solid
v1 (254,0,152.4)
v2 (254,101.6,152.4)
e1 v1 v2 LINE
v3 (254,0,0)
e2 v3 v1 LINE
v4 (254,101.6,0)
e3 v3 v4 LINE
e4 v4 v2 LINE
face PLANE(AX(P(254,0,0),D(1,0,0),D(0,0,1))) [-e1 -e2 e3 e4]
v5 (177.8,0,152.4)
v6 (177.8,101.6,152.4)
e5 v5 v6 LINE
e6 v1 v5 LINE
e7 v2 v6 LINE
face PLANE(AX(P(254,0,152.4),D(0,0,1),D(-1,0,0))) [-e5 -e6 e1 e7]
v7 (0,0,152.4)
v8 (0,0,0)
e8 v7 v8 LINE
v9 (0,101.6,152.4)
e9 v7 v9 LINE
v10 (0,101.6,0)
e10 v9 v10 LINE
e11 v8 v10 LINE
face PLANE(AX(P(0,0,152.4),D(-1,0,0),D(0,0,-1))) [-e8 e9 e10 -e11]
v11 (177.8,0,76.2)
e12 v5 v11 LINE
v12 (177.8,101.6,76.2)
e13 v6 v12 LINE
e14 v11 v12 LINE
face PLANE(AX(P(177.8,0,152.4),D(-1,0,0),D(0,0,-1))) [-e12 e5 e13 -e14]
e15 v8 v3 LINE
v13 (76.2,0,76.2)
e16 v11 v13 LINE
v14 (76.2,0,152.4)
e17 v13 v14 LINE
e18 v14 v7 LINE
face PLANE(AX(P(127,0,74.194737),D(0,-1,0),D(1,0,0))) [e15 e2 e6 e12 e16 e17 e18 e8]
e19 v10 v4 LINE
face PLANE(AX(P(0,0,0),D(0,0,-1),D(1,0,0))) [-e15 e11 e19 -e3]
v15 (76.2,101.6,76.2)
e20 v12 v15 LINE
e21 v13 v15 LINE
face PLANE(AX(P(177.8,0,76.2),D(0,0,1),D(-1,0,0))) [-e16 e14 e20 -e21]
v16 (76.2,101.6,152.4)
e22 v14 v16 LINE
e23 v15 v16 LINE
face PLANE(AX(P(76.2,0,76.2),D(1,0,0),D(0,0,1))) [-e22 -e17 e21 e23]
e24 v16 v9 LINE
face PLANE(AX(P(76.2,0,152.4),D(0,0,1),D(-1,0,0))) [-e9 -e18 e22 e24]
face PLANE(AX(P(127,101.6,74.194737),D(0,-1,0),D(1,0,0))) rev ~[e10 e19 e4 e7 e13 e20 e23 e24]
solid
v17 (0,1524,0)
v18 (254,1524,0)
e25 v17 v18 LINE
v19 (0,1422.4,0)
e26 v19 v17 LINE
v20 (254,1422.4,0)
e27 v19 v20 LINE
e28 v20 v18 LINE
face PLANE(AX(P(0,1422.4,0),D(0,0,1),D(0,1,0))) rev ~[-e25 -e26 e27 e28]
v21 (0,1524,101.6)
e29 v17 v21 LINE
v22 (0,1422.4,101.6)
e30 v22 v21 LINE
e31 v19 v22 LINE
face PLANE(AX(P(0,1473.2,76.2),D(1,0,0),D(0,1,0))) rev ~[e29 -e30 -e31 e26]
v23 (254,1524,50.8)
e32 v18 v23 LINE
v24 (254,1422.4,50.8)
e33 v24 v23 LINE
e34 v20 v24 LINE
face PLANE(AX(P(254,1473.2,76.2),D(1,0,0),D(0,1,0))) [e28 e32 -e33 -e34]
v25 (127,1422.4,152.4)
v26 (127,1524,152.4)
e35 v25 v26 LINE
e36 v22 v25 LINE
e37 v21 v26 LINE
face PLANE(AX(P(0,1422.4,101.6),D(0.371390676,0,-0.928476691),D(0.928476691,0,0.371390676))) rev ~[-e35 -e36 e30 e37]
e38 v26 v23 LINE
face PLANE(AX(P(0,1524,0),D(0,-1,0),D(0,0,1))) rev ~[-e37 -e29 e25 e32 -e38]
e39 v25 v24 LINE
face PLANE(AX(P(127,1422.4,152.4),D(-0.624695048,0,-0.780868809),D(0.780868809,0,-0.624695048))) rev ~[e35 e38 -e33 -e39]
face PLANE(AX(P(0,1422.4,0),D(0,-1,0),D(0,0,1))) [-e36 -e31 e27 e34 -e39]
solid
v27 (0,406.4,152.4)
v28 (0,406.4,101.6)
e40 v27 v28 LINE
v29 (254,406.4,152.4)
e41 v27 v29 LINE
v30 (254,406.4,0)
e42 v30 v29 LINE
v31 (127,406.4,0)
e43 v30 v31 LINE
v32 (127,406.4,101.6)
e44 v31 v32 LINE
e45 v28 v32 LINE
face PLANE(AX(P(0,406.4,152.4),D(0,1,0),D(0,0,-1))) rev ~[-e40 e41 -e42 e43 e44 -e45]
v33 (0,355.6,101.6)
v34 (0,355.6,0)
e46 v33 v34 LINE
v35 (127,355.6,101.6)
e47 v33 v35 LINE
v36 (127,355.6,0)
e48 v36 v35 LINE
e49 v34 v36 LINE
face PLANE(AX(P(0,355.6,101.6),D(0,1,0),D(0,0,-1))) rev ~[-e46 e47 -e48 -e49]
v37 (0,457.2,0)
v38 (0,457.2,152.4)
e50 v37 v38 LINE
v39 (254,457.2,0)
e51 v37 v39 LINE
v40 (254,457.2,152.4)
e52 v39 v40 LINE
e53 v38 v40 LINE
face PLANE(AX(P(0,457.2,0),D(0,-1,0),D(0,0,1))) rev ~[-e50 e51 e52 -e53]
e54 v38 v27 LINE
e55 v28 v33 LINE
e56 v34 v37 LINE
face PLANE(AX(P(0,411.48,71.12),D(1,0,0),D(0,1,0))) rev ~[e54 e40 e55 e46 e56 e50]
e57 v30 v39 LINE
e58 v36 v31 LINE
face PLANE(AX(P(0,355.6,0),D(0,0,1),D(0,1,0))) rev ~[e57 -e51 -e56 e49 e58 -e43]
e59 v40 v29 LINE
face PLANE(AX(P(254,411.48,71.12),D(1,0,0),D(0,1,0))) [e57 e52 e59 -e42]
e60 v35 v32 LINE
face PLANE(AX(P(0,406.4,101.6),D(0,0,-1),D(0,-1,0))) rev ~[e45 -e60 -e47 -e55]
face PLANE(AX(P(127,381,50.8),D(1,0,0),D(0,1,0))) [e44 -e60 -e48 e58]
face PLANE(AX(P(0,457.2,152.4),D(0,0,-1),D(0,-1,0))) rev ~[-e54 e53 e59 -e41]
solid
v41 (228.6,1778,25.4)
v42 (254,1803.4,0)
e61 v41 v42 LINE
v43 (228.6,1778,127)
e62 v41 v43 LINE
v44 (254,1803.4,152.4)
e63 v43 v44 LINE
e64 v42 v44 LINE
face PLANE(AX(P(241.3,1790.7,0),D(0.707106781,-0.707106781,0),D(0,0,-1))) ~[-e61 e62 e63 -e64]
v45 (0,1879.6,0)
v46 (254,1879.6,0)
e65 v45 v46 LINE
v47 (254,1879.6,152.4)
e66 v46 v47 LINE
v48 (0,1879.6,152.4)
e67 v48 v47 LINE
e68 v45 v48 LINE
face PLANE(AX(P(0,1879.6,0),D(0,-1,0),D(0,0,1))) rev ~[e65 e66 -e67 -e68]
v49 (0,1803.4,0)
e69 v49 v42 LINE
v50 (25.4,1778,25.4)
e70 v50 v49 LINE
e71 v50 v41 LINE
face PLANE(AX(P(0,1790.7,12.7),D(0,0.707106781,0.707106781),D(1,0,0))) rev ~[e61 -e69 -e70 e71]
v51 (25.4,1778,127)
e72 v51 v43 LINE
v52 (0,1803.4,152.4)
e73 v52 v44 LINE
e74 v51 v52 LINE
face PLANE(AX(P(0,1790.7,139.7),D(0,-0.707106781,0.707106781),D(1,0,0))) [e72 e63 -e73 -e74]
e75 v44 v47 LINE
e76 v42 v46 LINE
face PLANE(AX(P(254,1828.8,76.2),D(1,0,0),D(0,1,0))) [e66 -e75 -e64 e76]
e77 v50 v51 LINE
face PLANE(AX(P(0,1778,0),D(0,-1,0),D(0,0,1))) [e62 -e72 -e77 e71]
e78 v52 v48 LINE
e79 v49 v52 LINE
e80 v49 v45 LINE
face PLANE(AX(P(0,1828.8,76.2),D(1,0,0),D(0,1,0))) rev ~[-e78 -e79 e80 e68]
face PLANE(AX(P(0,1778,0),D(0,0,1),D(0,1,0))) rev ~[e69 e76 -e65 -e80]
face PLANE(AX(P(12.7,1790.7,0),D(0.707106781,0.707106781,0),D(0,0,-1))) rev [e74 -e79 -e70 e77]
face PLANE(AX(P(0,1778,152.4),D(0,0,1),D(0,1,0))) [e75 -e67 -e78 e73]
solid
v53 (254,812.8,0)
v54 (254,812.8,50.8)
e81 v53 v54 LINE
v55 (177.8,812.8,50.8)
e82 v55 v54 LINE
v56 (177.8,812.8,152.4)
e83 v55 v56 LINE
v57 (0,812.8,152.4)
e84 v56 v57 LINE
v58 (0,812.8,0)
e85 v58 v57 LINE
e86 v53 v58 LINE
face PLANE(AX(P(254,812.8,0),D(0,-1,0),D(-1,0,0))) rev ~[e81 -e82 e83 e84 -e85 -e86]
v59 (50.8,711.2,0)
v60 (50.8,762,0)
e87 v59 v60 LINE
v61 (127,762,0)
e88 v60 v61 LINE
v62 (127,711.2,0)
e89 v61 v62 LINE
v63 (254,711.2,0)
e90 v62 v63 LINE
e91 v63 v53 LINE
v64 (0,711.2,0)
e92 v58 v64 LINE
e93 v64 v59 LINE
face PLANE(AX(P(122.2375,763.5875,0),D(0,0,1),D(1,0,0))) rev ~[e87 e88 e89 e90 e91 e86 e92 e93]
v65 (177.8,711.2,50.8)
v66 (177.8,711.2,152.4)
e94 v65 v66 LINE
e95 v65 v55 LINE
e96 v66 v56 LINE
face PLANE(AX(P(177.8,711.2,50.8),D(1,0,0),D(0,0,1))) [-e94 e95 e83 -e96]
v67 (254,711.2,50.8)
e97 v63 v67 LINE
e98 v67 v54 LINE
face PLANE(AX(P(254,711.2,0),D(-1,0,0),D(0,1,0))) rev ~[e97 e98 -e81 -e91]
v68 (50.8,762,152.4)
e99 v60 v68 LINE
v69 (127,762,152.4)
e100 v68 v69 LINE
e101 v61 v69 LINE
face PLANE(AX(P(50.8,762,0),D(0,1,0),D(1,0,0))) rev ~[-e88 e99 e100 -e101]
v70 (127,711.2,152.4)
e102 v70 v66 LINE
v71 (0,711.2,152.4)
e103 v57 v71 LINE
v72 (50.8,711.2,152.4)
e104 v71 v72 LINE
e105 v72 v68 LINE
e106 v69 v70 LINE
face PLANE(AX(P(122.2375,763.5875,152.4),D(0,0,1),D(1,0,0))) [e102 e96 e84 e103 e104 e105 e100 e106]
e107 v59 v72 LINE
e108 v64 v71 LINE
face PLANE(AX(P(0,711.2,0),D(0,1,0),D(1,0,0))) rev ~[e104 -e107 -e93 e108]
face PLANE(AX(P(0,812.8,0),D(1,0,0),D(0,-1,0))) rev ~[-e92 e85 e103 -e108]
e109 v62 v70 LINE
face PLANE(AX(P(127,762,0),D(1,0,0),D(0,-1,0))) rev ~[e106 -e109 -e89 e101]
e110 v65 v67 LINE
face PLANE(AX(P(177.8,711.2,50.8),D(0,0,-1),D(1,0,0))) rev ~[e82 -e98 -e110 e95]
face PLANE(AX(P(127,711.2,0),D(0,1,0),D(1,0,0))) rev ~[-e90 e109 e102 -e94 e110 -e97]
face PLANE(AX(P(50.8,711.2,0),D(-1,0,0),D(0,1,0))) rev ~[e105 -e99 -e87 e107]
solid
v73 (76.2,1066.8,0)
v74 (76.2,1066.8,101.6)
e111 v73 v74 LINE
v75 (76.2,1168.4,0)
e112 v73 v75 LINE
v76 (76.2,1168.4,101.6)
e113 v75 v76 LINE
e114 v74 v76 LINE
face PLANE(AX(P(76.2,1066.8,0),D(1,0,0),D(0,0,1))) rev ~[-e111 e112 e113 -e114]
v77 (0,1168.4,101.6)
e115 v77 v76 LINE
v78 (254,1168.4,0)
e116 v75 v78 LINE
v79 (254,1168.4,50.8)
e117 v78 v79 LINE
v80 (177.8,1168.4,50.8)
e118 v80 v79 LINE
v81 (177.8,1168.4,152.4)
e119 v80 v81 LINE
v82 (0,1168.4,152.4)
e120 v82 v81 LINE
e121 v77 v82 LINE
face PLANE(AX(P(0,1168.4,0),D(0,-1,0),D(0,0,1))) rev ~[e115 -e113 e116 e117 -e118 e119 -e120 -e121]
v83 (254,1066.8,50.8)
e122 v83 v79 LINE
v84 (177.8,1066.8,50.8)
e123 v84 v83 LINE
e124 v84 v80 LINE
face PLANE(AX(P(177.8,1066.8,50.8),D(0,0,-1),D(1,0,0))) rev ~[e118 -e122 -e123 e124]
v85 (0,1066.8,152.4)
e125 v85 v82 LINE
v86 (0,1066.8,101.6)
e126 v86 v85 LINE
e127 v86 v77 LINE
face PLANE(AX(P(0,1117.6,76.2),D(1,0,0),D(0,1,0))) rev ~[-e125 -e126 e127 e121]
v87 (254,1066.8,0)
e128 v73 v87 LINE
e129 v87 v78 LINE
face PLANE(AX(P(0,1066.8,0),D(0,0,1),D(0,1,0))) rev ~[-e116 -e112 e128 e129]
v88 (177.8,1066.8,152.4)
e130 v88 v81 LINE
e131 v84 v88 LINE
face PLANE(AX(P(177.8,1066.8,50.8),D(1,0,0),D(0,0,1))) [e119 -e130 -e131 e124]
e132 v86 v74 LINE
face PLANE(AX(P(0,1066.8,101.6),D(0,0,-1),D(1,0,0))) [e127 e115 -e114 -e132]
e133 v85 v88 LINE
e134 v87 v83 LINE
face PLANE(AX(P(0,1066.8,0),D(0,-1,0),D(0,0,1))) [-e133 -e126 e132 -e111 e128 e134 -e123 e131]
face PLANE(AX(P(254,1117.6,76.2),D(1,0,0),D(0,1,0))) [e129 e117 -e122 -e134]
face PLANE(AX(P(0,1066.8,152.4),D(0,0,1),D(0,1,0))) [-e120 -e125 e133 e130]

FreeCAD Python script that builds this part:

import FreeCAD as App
import Part
import Sketcher
from FreeCAD import Vector
Q = App.Units.Quantity


def edges_at(feature, points):
    """Names of the edges that pass closest to the given points."""
    edges = feature.Shape.Edges
    near = lambda p: min(range(len(edges)), key=lambda i: edges[i].distToShape(Part.Vertex(*p))[0])
    return sorted({f"Edge{near(p) + 1}" for p in points})


def add_polygon(sketch, points):
    """Adds a closed chain of lines whose ends are joined by coincident constraints."""
    first, n = sketch.GeometryCount, len(points)
    for a, b in zip(points, points[1:] + points[:1]):
        sketch.addGeometry(Part.LineSegment(App.Vector(*a, 0), App.Vector(*b, 0)), False)
    for i in range(n):
        sketch.addConstraint(Sketcher.Constraint("Coincident", first + i, 2, first + (i + 1) % n, 1))

doc = App.newDocument("Part")
params = doc.addObject("Spreadsheet::Sheet", "Params")
for row, (alias, value) in enumerate([
    ("sketch1_width", "10 in"),
    ("sketch1_width2", "3 in"),
    ("sketch1_height", "6 in"),
    ("pad1_length", "4 in"),
    ("sketch2_width", "4 in"),
    ("pad2_length", "10 in"),
    ("sketch3_width", "2 in"),
    ("sketch3_height", "4 in"),
    ("pocket1_length", "5 in"),
    ("sketch4_width", "2 in"),
    ("sketch4_width2", "3 in"),
    ("sketch4_width3", "5 in"),
    ("sketch4_height", "4 in"),
    ("pad3_length", "6 in"),
    ("sketch5_width", "3 in"),
    ("sketch5_height", "4 in"),
    ("pocket2_length", "4 in"),
    ("sketch6_width", "4 in"),
    ("sketch6_height", "6 in"),
    ("pad4_length", "10 in"),
    ("sketch7_width", "3 in"),
    ("sketch7_height", "4 in"),
    ("pocket3_length", "4 in"),
    ("sketch8_width", "3 in"),
    ("sketch8_height", "4 in"),
    ("pocket4_length", "4 in"),
    ("sketch9_width", "4 in"),
    ("sketch9_height", "6 in"),
    ("pad5_length", "10 in"),
    ("sketch10_width", "5 in"),
    ("sketch10_height", "4 in"),
    ("pocket5_length", "4 in"),
    ("sketch11_width", "5 in"),
    ("sketch11_height", "2 in"),
    ("pocket6_length", "4 in"),
    ("sketch12_width", "4 in"),
    ("sketch12_height", "6 in"),
    ("pad6_length", "10 in"),
    ("chamfer_size", "1 in"),
], start=1):
    params.set(f"A{row}", alias)
    params.set(f"B{row}", "=" + value)
    params.setAlias(f"B{row}", alias)

body = doc.addObject("PartDesign::Body", "Body")

sketch1 = doc.addObject("Sketcher::SketchObject", "Sketch")
body.addObject(sketch1)
sketch1.AttachmentSupport = (doc.XZ_Plane, [""])
sketch1.MapMode = "FlatFace"
add_polygon(sketch1, [(0, 152), (0, 0), (254, 0), (254, 152), (178, 152), (178, 76), (76, 76), (76, 152)])
sketch1.addConstraint([
    Sketcher.Constraint("Vertical", 0),
    Sketcher.Constraint("Horizontal", 1),
    Sketcher.Constraint("Vertical", 2),
    Sketcher.Constraint("Horizontal", 3),
    Sketcher.Constraint("Vertical", 4),
    Sketcher.Constraint("Horizontal", 5),
    Sketcher.Constraint("Vertical", 6),
    Sketcher.Constraint("Horizontal", 7),
    Sketcher.Constraint("Coincident", 0, 2, -1, 1),
    Sketcher.Constraint("Horizontal", 3, 2, 6, 2),
    Sketcher.Constraint("Equal", 3, 7),
    Sketcher.Constraint("Equal", 7, 4),
    Sketcher.Constraint("DistanceX", 1, 1, 1, 2, Q("10 in")),
    Sketcher.Constraint("DistanceX", 3, 2, 3, 1, Q("3 in")),
    Sketcher.Constraint("DistanceY", 0, 2, 0, 1, Q("6 in")),
])
sketch1.setExpression("Constraints[20]", "Params.sketch1_width")
sketch1.setExpression("Constraints[21]", "Params.sketch1_width2")
sketch1.setExpression("Constraints[22]", "Params.sketch1_height")
pad1 = doc.addObject("PartDesign::Pad", "Pad")
body.addObject(pad1)
pad1.Profile = sketch1
pad1.setExpression("Length", "Params.pad1_length")
pad1.Reversed = True
body2 = doc.addObject("PartDesign::Body", "Body001")

sketch2 = doc.addObject("Sketcher::SketchObject", "Sketch001")
body2.addObject(sketch2)
sketch2.AttachmentSupport = (doc.getObject("YZ_Plane001"), [""])
sketch2.MapMode = "FlatFace"
add_polygon(sketch2, [(356, 102), (356, 0), (457, 0), (457, 152), (406, 152), (406, 102)])
sketch2.addConstraint([
    Sketcher.Constraint("Vertical", 0),
    Sketcher.Constraint("Horizontal", 1),
    Sketcher.Constraint("Vertical", 2),
    Sketcher.Constraint("Horizontal", 3),
    Sketcher.Constraint("Vertical", 4),
    Sketcher.Constraint("Horizontal", 5),
    Sketcher.Constraint("PointOnObject", 0, 2, -1),
    Sketcher.Constraint("Equal", 3, 5),
    Sketcher.Constraint("Equal", 1, 0),
    Sketcher.Constraint("Equal", 5, 4),
    Sketcher.Constraint("DistanceX", 1, 1, 1, 2, Q("4 in")),
    Sketcher.Constraint("DistanceX", -1, 1, 0, 2, Q("14 in")),
])
sketch2.setExpression("Constraints[16]", "Params.sketch2_width")
pad2 = doc.addObject("PartDesign::Pad", "Pad001")
body2.addObject(pad2)
pad2.Profile = sketch2
pad2.setExpression("Length", "Params.pad2_length")

sketch3 = doc.addObject("Sketcher::SketchObject", "Sketch002")
body2.addObject(sketch3)
sketch3.AttachmentSupport = (doc.getObject("YZ_Plane001"), [""])
sketch3.MapMode = "FlatFace"
sketch3.AttachmentOffset = App.Placement(Vector(0, 0, 10 * 25.4), App.Rotation())
add_polygon(sketch3, [(356, 102), (356, 0), (406, 0), (406, 102)])
sketch3.addConstraint([
    Sketcher.Constraint("Vertical", 0),
    Sketcher.Constraint("Horizontal", 1),
    Sketcher.Constraint("Vertical", 2),
    Sketcher.Constraint("Horizontal", 3),
    Sketcher.Constraint("PointOnObject", 0, 2, -1),
    Sketcher.Constraint("DistanceX", 1, 1, 1, 2, Q("2 in")),
    Sketcher.Constraint("DistanceY", 0, 2, 0, 1, Q("4 in")),
    Sketcher.Constraint("DistanceX", -1, 1, 0, 2, Q("14 in")),
])
sketch3.setExpression("Constraints[9]", "Params.sketch3_width")
sketch3.setExpression("Constraints[10]", "Params.sketch3_height")
pocket1 = doc.addObject("PartDesign::Pocket", "Pocket")
body2.addObject(pocket1)
pocket1.Profile = sketch3
pocket1.setExpression("Length", "Params.pocket1_length")
body3 = doc.addObject("PartDesign::Body", "Body002")

sketch4 = doc.addObject("Sketcher::SketchObject", "Sketch003")
body3.addObject(sketch4)
sketch4.AttachmentSupport = (doc.getObject("XY_Plane002"), [""])
sketch4.MapMode = "FlatFace"
add_polygon(sketch4, [(0, 813), (0, 711), (51, 711), (51, 762), (127, 762), (127, 711), (254, 711), (254, 813)])
sketch4.addConstraint([
    Sketcher.Constraint("Vertical", 0),
    Sketcher.Constraint("Horizontal", 1),
    Sketcher.Constraint("Vertical", 2),
    Sketcher.Constraint("Horizontal", 3),
    Sketcher.Constraint("Vertical", 4),
    Sketcher.Constraint("Horizontal", 5),
    Sketcher.Constraint("Vertical", 6),
    Sketcher.Constraint("Horizontal", 7),
    Sketcher.Constraint("PointOnObject", 0, 2, -2),
    Sketcher.Constraint("Horizontal", 1, 2, 4, 2),
    Sketcher.Constraint("Equal", 1, 2),
    Sketcher.Constraint("DistanceX", 1, 1, 1, 2, Q("2 in")),
    Sketcher.Constraint("DistanceX", 3, 1, 3, 2, Q("3 in")),
    Sketcher.Constraint("DistanceX", 5, 1, 5, 2, Q("5 in")),
    Sketcher.Constraint("DistanceY", 0, 2, 0, 1, Q("4 in")),
    Sketcher.Constraint("DistanceY", -1, 1, 0, 2, Q("28 in")),
])
sketch4.setExpression("Constraints[19]", "Params.sketch4_width")
sketch4.setExpression("Constraints[20]", "Params.sketch4_width2")
sketch4.setExpression("Constraints[21]", "Params.sketch4_width3")
sketch4.setExpression("Constraints[22]", "Params.sketch4_height")
pad3 = doc.addObject("PartDesign::Pad", "Pad002")
body3.addObject(pad3)
pad3.Profile = sketch4
pad3.setExpression("Length", "Params.pad3_length")

sketch5 = doc.addObject("Sketcher::SketchObject", "Sketch004")
body3.addObject(sketch5)
sketch5.AttachmentSupport = (doc.getObject("XZ_Plane002"), [""])
sketch5.MapMode = "FlatFace"
sketch5.AttachmentOffset = App.Placement(Vector(0, 0, -28 * 25.4), App.Rotation())
add_polygon(sketch5, [(178, 152), (178, 51), (254, 51), (254, 152)])
sketch5.addConstraint([
    Sketcher.Constraint("Vertical", 0),
    Sketcher.Constraint("Horizontal", 1),
    Sketcher.Constraint("Vertical", 2),
    Sketcher.Constraint("Horizontal", 3),
    Sketcher.Constraint("DistanceX", 1, 1, 1, 2, Q("3 in")),
    Sketcher.Constraint("DistanceY", 0, 2, 0, 1, Q("4 in")),
    Sketcher.Constraint("DistanceX", -1, 1, 0, 2, Q("7 in")),
    Sketcher.Constraint("DistanceY", -1, 1, 0, 2, Q("2 in")),
])
sketch5.setExpression("Constraints[8]", "Params.sketch5_width")
sketch5.setExpression("Constraints[9]", "Params.sketch5_height")
pocket2 = doc.addObject("PartDesign::Pocket", "Pocket001")
body3.addObject(pocket2)
pocket2.Profile = sketch5
pocket2.setExpression("Length", "Params.pocket2_length")
body4 = doc.addObject("PartDesign::Body", "Body003")

sketch6 = doc.addObject("Sketcher::SketchObject", "Sketch005")
body4.addObject(sketch6)
sketch6.AttachmentSupport = (doc.getObject("YZ_Plane003"), [""])
sketch6.MapMode = "FlatFace"
add_polygon(sketch6, [(1067, 152), (1067, 0), (1168, 0), (1168, 152)])
sketch6.addConstraint([
    Sketcher.Constraint("Vertical", 0),
    Sketcher.Constraint("Horizontal", 1),
    Sketcher.Constraint("Vertical", 2),
    Sketcher.Constraint("Horizontal", 3),
    Sketcher.Constraint("PointOnObject", 0, 2, -1),
    Sketcher.Constraint("DistanceX", 1, 1, 1, 2, Q("4 in")),
    Sketcher.Constraint("DistanceY", 0, 2, 0, 1, Q("6 in")),
    Sketcher.Constraint("DistanceX", -1, 1, 0, 2, Q("42 in")),
])
sketch6.setExpression("Constraints[9]", "Params.sketch6_width")
sketch6.setExpression("Constraints[10]", "Params.sketch6_height")
pad4 = doc.addObject("PartDesign::Pad", "Pad003")
body4.addObject(pad4)
pad4.Profile = sketch6
pad4.setExpression("Length", "Params.pad4_length")

sketch7 = doc.addObject("Sketcher::SketchObject", "Sketch006")
body4.addObject(sketch7)
sketch7.AttachmentSupport = (doc.getObject("XZ_Plane003"), [""])
sketch7.MapMode = "FlatFace"
sketch7.AttachmentOffset = App.Placement(Vector(0, 0, -42 * 25.4), App.Rotation())
add_polygon(sketch7, [(178, 152), (178, 51), (254, 51), (254, 152)])
sketch7.addConstraint([
    Sketcher.Constraint("Vertical", 0),
    Sketcher.Constraint("Horizontal", 1),
    Sketcher.Constraint("Vertical", 2),
    Sketcher.Constraint("Horizontal", 3),
    Sketcher.Constraint("DistanceX", 1, 1, 1, 2, Q("3 in")),
    Sketcher.Constraint("DistanceY", 0, 2, 0, 1, Q("4 in")),
    Sketcher.Constraint("DistanceX", -1, 1, 0, 2, Q("7 in")),
    Sketcher.Constraint("DistanceY", -1, 1, 0, 2, Q("2 in")),
])
sketch7.setExpression("Constraints[8]", "Params.sketch7_width")
sketch7.setExpression("Constraints[9]", "Params.sketch7_height")
pocket3 = doc.addObject("PartDesign::Pocket", "Pocket002")
body4.addObject(pocket3)
pocket3.Profile = sketch7
pocket3.setExpression("Length", "Params.pocket3_length")

sketch8 = doc.addObject("Sketcher::SketchObject", "Sketch007")
body4.addObject(sketch8)
sketch8.AttachmentSupport = (doc.getObject("XZ_Plane003"), [""])
sketch8.MapMode = "FlatFace"
sketch8.AttachmentOffset = App.Placement(Vector(0, 0, -42 * 25.4), App.Rotation())
add_polygon(sketch8, [(0, 102), (0, 0), (76, 0), (76, 102)])
sketch8.addConstraint([
    Sketcher.Constraint("Vertical", 0),
    Sketcher.Constraint("Horizontal", 1),
    Sketcher.Constraint("Vertical", 2),
    Sketcher.Constraint("Horizontal", 3),
    Sketcher.Constraint("Coincident", 0, 2, -1, 1),
    Sketcher.Constraint("DistanceX", 1, 1, 1, 2, Q("3 in")),
    Sketcher.Constraint("DistanceY", 0, 2, 0, 1, Q("4 in")),
])
sketch8.setExpression("Constraints[9]", "Params.sketch8_width")
sketch8.setExpression("Constraints[10]", "Params.sketch8_height")
pocket4 = doc.addObject("PartDesign::Pocket", "Pocket003")
body4.addObject(pocket4)
pocket4.Profile = sketch8
pocket4.setExpression("Length", "Params.pocket4_length")
body5 = doc.addObject("PartDesign::Body", "Body004")

sketch9 = doc.addObject("Sketcher::SketchObject", "Sketch008")
body5.addObject(sketch9)
sketch9.AttachmentSupport = (doc.getObject("YZ_Plane004"), [""])
sketch9.MapMode = "FlatFace"
add_polygon(sketch9, [(1422, 152), (1422, 0), (1524, 0), (1524, 152)])
sketch9.addConstraint([
    Sketcher.Constraint("Vertical", 0),
    Sketcher.Constraint("Horizontal", 1),
    Sketcher.Constraint("Vertical", 2),
    Sketcher.Constraint("Horizontal", 3),
    Sketcher.Constraint("PointOnObject", 0, 2, -1),
    Sketcher.Constraint("DistanceX", 1, 1, 1, 2, Q("4 in")),
    Sketcher.Constraint("DistanceY", 0, 2, 0, 1, Q("6 in")),
    Sketcher.Constraint("DistanceX", -1, 1, 0, 2, Q("56 in")),
])
sketch9.setExpression("Constraints[9]", "Params.sketch9_width")
sketch9.setExpression("Constraints[10]", "Params.sketch9_height")
pad5 = doc.addObject("PartDesign::Pad", "Pad004")
body5.addObject(pad5)
pad5.Profile = sketch9
pad5.setExpression("Length", "Params.pad5_length")

sketch10 = doc.addObject("Sketcher::SketchObject", "Sketch009")
body5.addObject(sketch10)
sketch10.AttachmentSupport = (doc.getObject("XZ_Plane004"), [""])
sketch10.MapMode = "FlatFace"
sketch10.AttachmentOffset = App.Placement(Vector(0, 0, -56 * 25.4), App.Rotation())
add_polygon(sketch10, [(127, 152), (254, 51), (254, 152)])
sketch10.addConstraint([
    Sketcher.Constraint("Vertical", 1),
    Sketcher.Constraint("Horizontal", 2),
    Sketcher.Constraint("DistanceX", 2, 2, 2, 1, Q("5 in")),
    Sketcher.Constraint("DistanceY", 1, 1, 1, 2, Q("4 in")),
    Sketcher.Constraint("DistanceX", -1, 1, 0, 2, Q("10 in")),
    Sketcher.Constraint("DistanceY", -1, 1, 0, 2, Q("2 in")),
])
sketch10.setExpression("Constraints[5]", "Params.sketch10_width")
sketch10.setExpression("Constraints[6]", "Params.sketch10_height")
pocket5 = doc.addObject("PartDesign::Pocket", "Pocket004")
body5.addObject(pocket5)
pocket5.Profile = sketch10
pocket5.setExpression("Length", "Params.pocket5_length")

sketch11 = doc.addObject("Sketcher::SketchObject", "Sketch010")
body5.addObject(sketch11)
sketch11.AttachmentSupport = (doc.getObject("XZ_Plane004"), [""])
sketch11.MapMode = "FlatFace"
sketch11.AttachmentOffset = App.Placement(Vector(0, 0, -56 * 25.4), App.Rotation())
add_polygon(sketch11, [(127, 152), (0, 152), (0, 102)])
sketch11.addConstraint([
    Sketcher.Constraint("Horizontal", 0),
    Sketcher.Constraint("Vertical", 1),
    Sketcher.Constraint("PointOnObject", 0, 2, -2),
    Sketcher.Constraint("DistanceX", 0, 2, 0, 1, Q("5 in")),
    Sketcher.Constraint("DistanceY", 1, 2, 1, 1, Q("2 in")),
    Sketcher.Constraint("DistanceY", -1, 1, 0, 2, Q("6 in")),
])
sketch11.setExpression("Constraints[6]", "Params.sketch11_width")
sketch11.setExpression("Constraints[7]", "Params.sketch11_height")
pocket6 = doc.addObject("PartDesign::Pocket", "Pocket005")
body5.addObject(pocket6)
pocket6.Profile = sketch11
pocket6.setExpression("Length", "Params.pocket6_length")
body6 = doc.addObject("PartDesign::Body", "Body005")

sketch12 = doc.addObject("Sketcher::SketchObject", "Sketch011")
body6.addObject(sketch12)
sketch12.AttachmentSupport = (doc.getObject("YZ_Plane005"), [""])
sketch12.MapMode = "FlatFace"
add_polygon(sketch12, [(1778, 152), (1778, 0), (1880, 0), (1880, 152)])
sketch12.addConstraint([
    Sketcher.Constraint("Vertical", 0),
    Sketcher.Constraint("Horizontal", 1),
    Sketcher.Constraint("Vertical", 2),
    Sketcher.Constraint("Horizontal", 3),
    Sketcher.Constraint("PointOnObject", 0, 2, -1),
    Sketcher.Constraint("DistanceX", 1, 1, 1, 2, Q("4 in")),
    Sketcher.Constraint("DistanceY", 0, 2, 0, 1, Q("6 in")),
    Sketcher.Constraint("DistanceX", -1, 1, 0, 2, Q("70 in")),
])
sketch12.setExpression("Constraints[9]", "Params.sketch12_width")
sketch12.setExpression("Constraints[10]", "Params.sketch12_height")
pad6 = doc.addObject("PartDesign::Pad", "Pad005")
body6.addObject(pad6)
pad6.Profile = sketch12
pad6.setExpression("Length", "Params.pad6_length")
doc.recompute()

chamfer = doc.addObject("PartDesign::Chamfer", "Chamfer")
body6.addObject(chamfer)
chamfer.Base = (pad6, edges_at(pad6, [
    (127, 1778, 152.4),
    (127, 1778, 0),
    (0, 1778, 76.2),
    (254, 1778, 76.2),
]))
chamfer.setExpression("Size", "Params.chamfer_size")

doc.recompute()
